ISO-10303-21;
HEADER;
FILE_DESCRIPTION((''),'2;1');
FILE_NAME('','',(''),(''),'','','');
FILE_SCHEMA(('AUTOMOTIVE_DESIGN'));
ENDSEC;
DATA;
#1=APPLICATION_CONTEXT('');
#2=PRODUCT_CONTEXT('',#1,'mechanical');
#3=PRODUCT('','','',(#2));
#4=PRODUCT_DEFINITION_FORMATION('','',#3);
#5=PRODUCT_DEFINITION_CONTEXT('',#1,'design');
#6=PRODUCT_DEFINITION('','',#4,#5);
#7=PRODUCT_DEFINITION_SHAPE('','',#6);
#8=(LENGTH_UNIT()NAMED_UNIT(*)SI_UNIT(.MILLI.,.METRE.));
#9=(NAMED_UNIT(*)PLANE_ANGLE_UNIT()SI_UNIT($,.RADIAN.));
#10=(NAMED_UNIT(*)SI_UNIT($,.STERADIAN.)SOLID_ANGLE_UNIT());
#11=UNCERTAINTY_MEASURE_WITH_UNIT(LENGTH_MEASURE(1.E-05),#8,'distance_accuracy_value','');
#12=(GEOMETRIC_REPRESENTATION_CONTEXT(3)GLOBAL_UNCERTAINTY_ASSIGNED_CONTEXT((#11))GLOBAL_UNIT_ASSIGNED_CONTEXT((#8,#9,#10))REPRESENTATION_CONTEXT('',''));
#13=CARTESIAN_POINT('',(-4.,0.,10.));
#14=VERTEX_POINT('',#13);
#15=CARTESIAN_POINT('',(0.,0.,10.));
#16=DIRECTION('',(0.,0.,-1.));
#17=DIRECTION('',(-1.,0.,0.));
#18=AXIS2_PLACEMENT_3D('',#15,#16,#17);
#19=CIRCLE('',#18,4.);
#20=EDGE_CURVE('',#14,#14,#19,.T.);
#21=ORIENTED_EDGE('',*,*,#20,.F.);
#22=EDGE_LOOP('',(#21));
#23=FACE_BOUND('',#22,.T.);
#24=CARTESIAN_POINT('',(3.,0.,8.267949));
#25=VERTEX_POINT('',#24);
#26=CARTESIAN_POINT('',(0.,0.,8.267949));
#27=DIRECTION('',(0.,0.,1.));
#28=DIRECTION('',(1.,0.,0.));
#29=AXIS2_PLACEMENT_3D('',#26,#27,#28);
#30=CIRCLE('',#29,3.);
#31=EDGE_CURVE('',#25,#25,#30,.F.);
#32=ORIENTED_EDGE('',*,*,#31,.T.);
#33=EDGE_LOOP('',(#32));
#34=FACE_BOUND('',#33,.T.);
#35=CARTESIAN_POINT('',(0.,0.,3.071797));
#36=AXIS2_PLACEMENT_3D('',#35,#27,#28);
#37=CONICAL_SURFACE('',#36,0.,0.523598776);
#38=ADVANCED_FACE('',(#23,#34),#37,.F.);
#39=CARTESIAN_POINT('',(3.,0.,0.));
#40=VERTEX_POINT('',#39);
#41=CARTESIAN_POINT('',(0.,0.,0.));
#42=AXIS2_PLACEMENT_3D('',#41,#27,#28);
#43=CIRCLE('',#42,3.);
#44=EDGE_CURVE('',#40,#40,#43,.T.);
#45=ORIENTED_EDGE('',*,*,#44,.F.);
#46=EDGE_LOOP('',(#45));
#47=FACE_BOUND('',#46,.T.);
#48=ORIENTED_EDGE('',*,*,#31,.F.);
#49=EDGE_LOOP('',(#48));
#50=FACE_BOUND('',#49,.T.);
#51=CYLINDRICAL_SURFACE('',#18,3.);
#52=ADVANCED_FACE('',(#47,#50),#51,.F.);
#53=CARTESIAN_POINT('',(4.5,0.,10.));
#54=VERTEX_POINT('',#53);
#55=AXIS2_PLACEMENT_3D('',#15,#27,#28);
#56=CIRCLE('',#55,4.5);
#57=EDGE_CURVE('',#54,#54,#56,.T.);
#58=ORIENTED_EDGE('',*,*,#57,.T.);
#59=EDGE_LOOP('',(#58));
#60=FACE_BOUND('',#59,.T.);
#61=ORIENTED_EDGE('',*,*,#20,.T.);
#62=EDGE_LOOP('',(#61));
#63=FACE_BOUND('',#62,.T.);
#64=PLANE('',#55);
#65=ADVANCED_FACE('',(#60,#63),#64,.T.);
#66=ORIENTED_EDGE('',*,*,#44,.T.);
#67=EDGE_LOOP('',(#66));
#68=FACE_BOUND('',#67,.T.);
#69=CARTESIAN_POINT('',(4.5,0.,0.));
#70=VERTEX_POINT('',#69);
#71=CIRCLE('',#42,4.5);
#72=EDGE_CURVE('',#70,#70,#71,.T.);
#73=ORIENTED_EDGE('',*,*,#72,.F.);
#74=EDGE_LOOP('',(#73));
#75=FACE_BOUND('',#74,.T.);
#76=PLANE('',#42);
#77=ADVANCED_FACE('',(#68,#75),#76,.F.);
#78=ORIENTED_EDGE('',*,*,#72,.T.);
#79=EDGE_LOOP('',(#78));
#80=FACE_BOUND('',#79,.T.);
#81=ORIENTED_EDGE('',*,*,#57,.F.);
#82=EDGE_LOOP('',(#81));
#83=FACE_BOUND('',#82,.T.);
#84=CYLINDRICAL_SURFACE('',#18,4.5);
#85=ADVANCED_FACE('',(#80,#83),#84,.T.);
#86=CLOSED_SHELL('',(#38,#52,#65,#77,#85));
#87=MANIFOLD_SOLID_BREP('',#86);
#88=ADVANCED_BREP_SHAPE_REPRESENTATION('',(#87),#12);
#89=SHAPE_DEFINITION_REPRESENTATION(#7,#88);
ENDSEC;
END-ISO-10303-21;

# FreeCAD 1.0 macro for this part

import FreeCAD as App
import Part
import Sketcher
Q = App.Units.Quantity


def add_polygon(sketch, points):
    """Adds a closed chain of lines whose ends are joined by coincident constraints."""
    first, n = sketch.GeometryCount, len(points)
    for a, b in zip(points, points[1:] + points[:1]):
        sketch.addGeometry(Part.LineSegment(App.Vector(*a, 0), App.Vector(*b, 0)), False)
    for i in range(n):
        sketch.addConstraint(Sketcher.Constraint("Coincident", first + i, 2, first + (i + 1) % n, 1))

doc = App.newDocument("Part")
params = doc.addObject("Spreadsheet::Sheet", "Params")
for row, (alias, value) in enumerate([
    ("sketch1_diameter", "9 mm"),
    ("sketch1_diameter2", "6 mm"),
    ("pad1_length", "10 mm"),
    ("sketch2_width", "4 mm"),
    ("groove_angle", "360 deg"),
], start=1):
    params.set(f"A{row}", alias)
    params.set(f"B{row}", "=" + value)
    params.setAlias(f"B{row}", alias)

body = doc.addObject("PartDesign::Body", "Body")

sketch1 = doc.addObject("Sketcher::SketchObject", "Sketch")
body.addObject(sketch1)
sketch1.AttachmentSupport = (doc.XY_Plane, [""])
sketch1.MapMode = "FlatFace"
sketch1.addGeometry(Part.Circle(App.Vector(0, 0, 0), App.Vector(0, 0, 1), 4.5), False)
sketch1.addGeometry(Part.Circle(App.Vector(0, 0, 0), App.Vector(0, 0, 1), 3), False)
sketch1.addConstraint(Sketcher.Constraint("Coincident", 0, 3, -1, 1))
sketch1.addConstraint(Sketcher.Constraint("Coincident", 1, 3, -1, 1))
sketch1.addConstraint(Sketcher.Constraint("Diameter", 0, 9.0))
sketch1.addConstraint(Sketcher.Constraint("Diameter", 1, 6.0))
sketch1.setExpression("Constraints[2]", "Params.sketch1_diameter")
sketch1.setExpression("Constraints[3]", "Params.sketch1_diameter2")
pad1 = doc.addObject("PartDesign::Pad", "Pad")
body.addObject(pad1)
pad1.Profile = sketch1
pad1.setExpression("Length", "Params.pad1_length")

sketch2 = doc.addObject("Sketcher::SketchObject", "Sketch001")
body.addObject(sketch2)
sketch2.AttachmentSupport = (doc.XZ_Plane, [""])
sketch2.MapMode = "FlatFace"
add_polygon(sketch2, [(0, 3.1), (-4, 10), (0, 10)])
sketch2.addConstraint(Sketcher.Constraint("Horizontal", 1))
sketch2.addConstraint(Sketcher.Constraint("Vertical", 2))
sketch2.addConstraint(Sketcher.Constraint("PointOnObject", 1, 2, -2))
sketch2.addConstraint(Sketcher.Constraint("DistanceX", 1, 1, 1, 2, 4.0))
sketch2.addConstraint(Sketcher.Constraint("Angle", 0, Q("120 deg")))
sketch2.addConstraint(Sketcher.Constraint("DistanceY", -1, 1, 0, 2, 10.0))
sketch2.setExpression("Constraints[6]", "Params.sketch2_width")
groove = doc.addObject("PartDesign::Groove", "Groove")
body.addObject(groove)
groove.Profile = sketch2
groove.ReferenceAxis = (sketch2, ["V_Axis"])
groove.setExpression("Angle", "Params.groove_angle")

doc.recompute()
